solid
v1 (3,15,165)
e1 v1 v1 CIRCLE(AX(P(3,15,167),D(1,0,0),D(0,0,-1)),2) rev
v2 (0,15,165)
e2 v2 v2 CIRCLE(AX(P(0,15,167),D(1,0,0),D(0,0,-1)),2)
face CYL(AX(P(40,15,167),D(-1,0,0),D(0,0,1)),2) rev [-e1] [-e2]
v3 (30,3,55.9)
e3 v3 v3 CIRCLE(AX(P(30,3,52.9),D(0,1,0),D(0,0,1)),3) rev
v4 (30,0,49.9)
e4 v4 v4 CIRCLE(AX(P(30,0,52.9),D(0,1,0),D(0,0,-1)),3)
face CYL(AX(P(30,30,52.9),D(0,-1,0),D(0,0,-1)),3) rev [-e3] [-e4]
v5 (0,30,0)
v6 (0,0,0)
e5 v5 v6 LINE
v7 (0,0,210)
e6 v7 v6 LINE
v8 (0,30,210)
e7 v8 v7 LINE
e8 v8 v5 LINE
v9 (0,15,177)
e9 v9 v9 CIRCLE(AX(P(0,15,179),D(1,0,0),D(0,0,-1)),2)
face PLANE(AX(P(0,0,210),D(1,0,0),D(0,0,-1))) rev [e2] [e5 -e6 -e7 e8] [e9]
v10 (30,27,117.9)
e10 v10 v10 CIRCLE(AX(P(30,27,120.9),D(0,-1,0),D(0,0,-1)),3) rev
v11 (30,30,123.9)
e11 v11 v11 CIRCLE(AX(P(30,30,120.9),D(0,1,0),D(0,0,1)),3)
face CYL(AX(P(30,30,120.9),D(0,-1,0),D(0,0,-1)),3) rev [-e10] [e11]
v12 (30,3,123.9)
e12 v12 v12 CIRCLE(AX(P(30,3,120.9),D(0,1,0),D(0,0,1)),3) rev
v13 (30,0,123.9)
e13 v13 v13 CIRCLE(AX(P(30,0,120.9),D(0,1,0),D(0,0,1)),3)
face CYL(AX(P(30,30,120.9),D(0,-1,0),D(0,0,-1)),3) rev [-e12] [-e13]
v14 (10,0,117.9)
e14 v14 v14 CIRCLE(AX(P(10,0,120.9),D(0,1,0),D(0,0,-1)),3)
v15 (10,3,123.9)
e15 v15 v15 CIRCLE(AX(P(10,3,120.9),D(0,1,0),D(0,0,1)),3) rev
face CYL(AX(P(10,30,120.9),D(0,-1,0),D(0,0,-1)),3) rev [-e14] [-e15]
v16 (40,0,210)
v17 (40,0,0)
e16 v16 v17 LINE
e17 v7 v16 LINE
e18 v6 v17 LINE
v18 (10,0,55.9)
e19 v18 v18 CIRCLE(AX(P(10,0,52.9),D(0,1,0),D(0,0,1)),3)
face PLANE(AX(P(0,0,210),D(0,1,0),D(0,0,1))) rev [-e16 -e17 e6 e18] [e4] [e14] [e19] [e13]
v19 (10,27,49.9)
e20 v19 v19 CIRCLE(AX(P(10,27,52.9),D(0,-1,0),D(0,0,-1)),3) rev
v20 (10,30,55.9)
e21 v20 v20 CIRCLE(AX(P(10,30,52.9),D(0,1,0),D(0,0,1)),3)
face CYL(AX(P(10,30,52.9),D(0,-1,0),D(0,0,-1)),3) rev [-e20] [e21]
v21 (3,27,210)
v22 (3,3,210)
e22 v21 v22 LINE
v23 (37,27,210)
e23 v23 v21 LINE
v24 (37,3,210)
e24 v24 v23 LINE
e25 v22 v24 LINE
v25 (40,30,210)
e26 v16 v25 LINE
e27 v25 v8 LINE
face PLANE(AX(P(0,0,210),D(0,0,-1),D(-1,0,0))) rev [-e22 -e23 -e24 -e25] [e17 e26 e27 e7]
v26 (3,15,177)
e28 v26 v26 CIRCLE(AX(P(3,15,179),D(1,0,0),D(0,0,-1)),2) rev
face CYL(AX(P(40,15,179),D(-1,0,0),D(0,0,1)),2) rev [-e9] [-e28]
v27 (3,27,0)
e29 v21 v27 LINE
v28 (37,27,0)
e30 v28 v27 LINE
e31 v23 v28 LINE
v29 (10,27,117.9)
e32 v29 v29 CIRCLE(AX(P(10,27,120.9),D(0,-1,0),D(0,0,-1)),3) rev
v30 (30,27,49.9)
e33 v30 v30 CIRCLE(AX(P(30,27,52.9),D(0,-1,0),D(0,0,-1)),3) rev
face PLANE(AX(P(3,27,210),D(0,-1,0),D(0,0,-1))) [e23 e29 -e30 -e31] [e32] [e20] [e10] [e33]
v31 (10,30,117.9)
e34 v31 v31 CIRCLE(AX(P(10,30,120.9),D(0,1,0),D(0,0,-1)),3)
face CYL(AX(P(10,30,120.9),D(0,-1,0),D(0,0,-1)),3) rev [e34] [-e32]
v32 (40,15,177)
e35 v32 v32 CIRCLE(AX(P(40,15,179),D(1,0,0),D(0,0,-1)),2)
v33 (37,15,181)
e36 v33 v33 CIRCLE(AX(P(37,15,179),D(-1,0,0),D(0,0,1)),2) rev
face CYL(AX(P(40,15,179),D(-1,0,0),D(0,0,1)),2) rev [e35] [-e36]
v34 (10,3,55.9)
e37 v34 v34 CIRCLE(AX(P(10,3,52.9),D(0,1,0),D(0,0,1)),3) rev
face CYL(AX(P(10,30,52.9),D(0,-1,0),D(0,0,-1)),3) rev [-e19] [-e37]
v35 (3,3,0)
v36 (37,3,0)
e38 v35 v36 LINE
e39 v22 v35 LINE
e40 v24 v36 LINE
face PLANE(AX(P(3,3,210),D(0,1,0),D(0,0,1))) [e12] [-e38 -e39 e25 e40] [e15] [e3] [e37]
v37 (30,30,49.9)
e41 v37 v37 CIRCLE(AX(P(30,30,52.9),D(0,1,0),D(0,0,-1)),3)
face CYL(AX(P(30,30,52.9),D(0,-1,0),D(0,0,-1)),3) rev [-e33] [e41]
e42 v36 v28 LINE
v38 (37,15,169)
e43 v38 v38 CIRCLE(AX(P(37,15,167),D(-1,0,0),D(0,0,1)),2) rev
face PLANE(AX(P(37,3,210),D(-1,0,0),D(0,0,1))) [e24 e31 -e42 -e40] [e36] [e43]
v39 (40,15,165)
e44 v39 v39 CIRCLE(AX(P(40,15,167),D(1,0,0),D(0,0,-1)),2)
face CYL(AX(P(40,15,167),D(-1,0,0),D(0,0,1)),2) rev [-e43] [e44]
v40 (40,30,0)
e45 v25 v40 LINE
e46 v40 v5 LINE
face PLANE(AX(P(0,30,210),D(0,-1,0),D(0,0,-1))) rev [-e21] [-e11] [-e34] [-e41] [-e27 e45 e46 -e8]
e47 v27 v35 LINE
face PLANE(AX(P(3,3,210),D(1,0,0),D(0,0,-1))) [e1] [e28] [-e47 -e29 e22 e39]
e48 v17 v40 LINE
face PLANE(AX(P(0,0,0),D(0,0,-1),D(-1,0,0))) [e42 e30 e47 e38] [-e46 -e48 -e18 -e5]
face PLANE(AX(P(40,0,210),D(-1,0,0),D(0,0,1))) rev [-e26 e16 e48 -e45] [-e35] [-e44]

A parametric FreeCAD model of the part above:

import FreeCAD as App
import Part
import Sketcher

doc = App.newDocument("Part")
params = doc.addObject("Spreadsheet::Sheet", "Params")
for row, (alias, value) in enumerate([
    ("sketch1_width", "40 mm"),
    ("sketch1_width2", "34 mm"),
    ("sketch1_height", "30 mm"),
    ("sketch1_height2", "24 mm"),
    ("pad1_length", "210 mm"),
    ("sketch2_diameter", "4 mm"),
    ("sketch3_diameter", "6 mm"),
], start=1):
    params.set(f"A{row}", alias)
    params.set(f"B{row}", "=" + value)
    params.setAlias(f"B{row}", alias)

body = doc.addObject("PartDesign::Body", "Body")

sketch1 = doc.addObject("Sketcher::SketchObject", "Sketch")
body.addObject(sketch1)
sketch1.AttachmentSupport = (doc.XY_Plane, [""])
sketch1.MapMode = "FlatFace"
sketch1.addGeometry(Part.LineSegment(App.Vector(0, 30, 0), App.Vector(0, 0, 0)), False)
sketch1.addGeometry(Part.LineSegment(App.Vector(0, 0, 0), App.Vector(40, 0, 0)), False)
sketch1.addGeometry(Part.LineSegment(App.Vector(40, 0, 0), App.Vector(40, 30, 0)), False)
sketch1.addGeometry(Part.LineSegment(App.Vector(40, 30, 0), App.Vector(0, 30, 0)), False)
sketch1.addGeometry(Part.LineSegment(App.Vector(37, 3, 0), App.Vector(3, 3, 0)), False)
sketch1.addGeometry(Part.LineSegment(App.Vector(3, 3, 0), App.Vector(3, 27, 0)), False)
sketch1.addGeometry(Part.LineSegment(App.Vector(3, 27, 0), App.Vector(37, 27, 0)), False)
sketch1.addGeometry(Part.LineSegment(App.Vector(37, 27, 0), App.Vector(37, 3, 0)), False)
sketch1.addConstraint(Sketcher.Constraint("Coincident", 0, 2, 1, 1))
sketch1.addConstraint(Sketcher.Constraint("Coincident", 1, 2, 2, 1))
sketch1.addConstraint(Sketcher.Constraint("Coincident", 2, 2, 3, 1))
sketch1.addConstraint(Sketcher.Constraint("Coincident", 3, 2, 0, 1))
sketch1.addConstraint(Sketcher.Constraint("Coincident", 4, 2, 5, 1))
sketch1.addConstraint(Sketcher.Constraint("Coincident", 5, 2, 6, 1))
sketch1.addConstraint(Sketcher.Constraint("Coincident", 6, 2, 7, 1))
sketch1.addConstraint(Sketcher.Constraint("Coincident", 7, 2, 4, 1))
sketch1.addConstraint(Sketcher.Constraint("Vertical", 0))
sketch1.addConstraint(Sketcher.Constraint("Horizontal", 1))
sketch1.addConstraint(Sketcher.Constraint("Vertical", 2))
sketch1.addConstraint(Sketcher.Constraint("Horizontal", 3))
sketch1.addConstraint(Sketcher.Constraint("Horizontal", 4))
sketch1.addConstraint(Sketcher.Constraint("Vertical", 5))
sketch1.addConstraint(Sketcher.Constraint("Horizontal", 6))
sketch1.addConstraint(Sketcher.Constraint("Vertical", 7))
sketch1.addConstraint(Sketcher.Constraint("Coincident", 0, 2, -1, 1))
sketch1.addConstraint(Sketcher.Constraint("DistanceX", 1, 1, 1, 2, 40.0))
sketch1.addConstraint(Sketcher.Constraint("DistanceX", 4, 2, 4, 1, 34.0))
sketch1.addConstraint(Sketcher.Constraint("DistanceY", 0, 2, 0, 1, 30.0))
sketch1.addConstraint(Sketcher.Constraint("DistanceY", 5, 1, 5, 2, 24.0))
sketch1.addConstraint(Sketcher.Constraint("DistanceX", -1, 1, 4, 2, 3.0))
sketch1.addConstraint(Sketcher.Constraint("DistanceY", -1, 1, 4, 2, 3.0))
sketch1.setExpression("Constraints[17]", "Params.sketch1_width")
sketch1.setExpression("Constraints[18]", "Params.sketch1_width2")
sketch1.setExpression("Constraints[19]", "Params.sketch1_height")
sketch1.setExpression("Constraints[20]", "Params.sketch1_height2")
pad1 = doc.addObject("PartDesign::Pad", "Pad")
body.addObject(pad1)
pad1.Profile = sketch1
pad1.setExpression("Length", "Params.pad1_length")

sketch2 = doc.addObject("Sketcher::SketchObject", "Sketch001")
body.addObject(sketch2)
sketch2.AttachmentSupport = (doc.YZ_Plane, [""])
sketch2.MapMode = "FlatFace"
sketch2.addGeometry(Part.Circle(App.Vector(15, 167, 0), App.Vector(0, 0, 1), 2), False)
sketch2.addGeometry(Part.Circle(App.Vector(15, 179, 0), App.Vector(0, 0, 1), 2), False)
sketch2.addConstraint(Sketcher.Constraint("Equal", 0, 1))
sketch2.addConstraint(Sketcher.Constraint("Vertical", 0, 3, 1, 3))
sketch2.addConstraint(Sketcher.Constraint("Diameter", 0, 4.0))
sketch2.addConstraint(Sketcher.Constraint("DistanceX", -1, 1, 0, 3, 15.0))
sketch2.addConstraint(Sketcher.Constraint("DistanceY", -1, 1, 0, 3, 167.0))
sketch2.addConstraint(Sketcher.Constraint("DistanceY", -1, 1, 1, 3, 179.0))
sketch2.setExpression("Constraints[2]", "Params.sketch2_diameter")
pocket1 = doc.addObject("PartDesign::Pocket", "Pocket")
body.addObject(pocket1)
pocket1.Profile = sketch2
pocket1.Type = "ThroughAll"
pocket1.Reversed = True

sketch3 = doc.addObject("Sketcher::SketchObject", "Sketch002")
body.addObject(sketch3)
sketch3.AttachmentSupport = (doc.XZ_Plane, [""])
sketch3.MapMode = "FlatFace"
sketch3.addGeometry(Part.Circle(App.Vector(10, 52.9, 0), App.Vector(0, 0, 1), 3), False)
sketch3.addGeometry(Part.Circle(App.Vector(30, 52.9, 0), App.Vector(0, 0, 1), 3), False)
sketch3.addGeometry(Part.Circle(App.Vector(30, 120.9, 0), App.Vector(0, 0, 1), 3), False)
sketch3.addGeometry(Part.Circle(App.Vector(10, 120.9, 0), App.Vector(0, 0, 1), 3), False)
sketch3.addConstraint(Sketcher.Constraint("Equal", 0, 1))
sketch3.addConstraint(Sketcher.Constraint("Equal", 1, 2))
sketch3.addConstraint(Sketcher.Constraint("Equal", 2, 3))
sketch3.addConstraint(Sketcher.Constraint("Horizontal", 0, 3, 1, 3))
sketch3.addConstraint(Sketcher.Constraint("Horizontal", 2, 3, 3, 3))
sketch3.addConstraint(Sketcher.Constraint("Vertical", 1, 3, 2, 3))
sketch3.addConstraint(Sketcher.Constraint("Vertical", 0, 3, 3, 3))
sketch3.addConstraint(Sketcher.Constraint("Diameter", 0, 6.0))
sketch3.addConstraint(Sketcher.Constraint("DistanceX", -1, 1, 0, 3, 10.0))
sketch3.addConstraint(Sketcher.Constraint("DistanceX", -1, 1, 1, 3, 30.0))
sketch3.addConstraint(Sketcher.Constraint("DistanceY", 1, 3, 2, 3, 68.0))
sketch3.addConstraint(Sketcher.Constraint("DistanceY", -1, 1, 0, 3, 52.9))
sketch3.setExpression("Constraints[7]", "Params.sketch3_diameter")
pocket2 = doc.addObject("PartDesign::Pocket", "Pocket001")
body.addObject(pocket2)
pocket2.Profile = sketch3
pocket2.Type = "ThroughAll"

doc.recompute()
